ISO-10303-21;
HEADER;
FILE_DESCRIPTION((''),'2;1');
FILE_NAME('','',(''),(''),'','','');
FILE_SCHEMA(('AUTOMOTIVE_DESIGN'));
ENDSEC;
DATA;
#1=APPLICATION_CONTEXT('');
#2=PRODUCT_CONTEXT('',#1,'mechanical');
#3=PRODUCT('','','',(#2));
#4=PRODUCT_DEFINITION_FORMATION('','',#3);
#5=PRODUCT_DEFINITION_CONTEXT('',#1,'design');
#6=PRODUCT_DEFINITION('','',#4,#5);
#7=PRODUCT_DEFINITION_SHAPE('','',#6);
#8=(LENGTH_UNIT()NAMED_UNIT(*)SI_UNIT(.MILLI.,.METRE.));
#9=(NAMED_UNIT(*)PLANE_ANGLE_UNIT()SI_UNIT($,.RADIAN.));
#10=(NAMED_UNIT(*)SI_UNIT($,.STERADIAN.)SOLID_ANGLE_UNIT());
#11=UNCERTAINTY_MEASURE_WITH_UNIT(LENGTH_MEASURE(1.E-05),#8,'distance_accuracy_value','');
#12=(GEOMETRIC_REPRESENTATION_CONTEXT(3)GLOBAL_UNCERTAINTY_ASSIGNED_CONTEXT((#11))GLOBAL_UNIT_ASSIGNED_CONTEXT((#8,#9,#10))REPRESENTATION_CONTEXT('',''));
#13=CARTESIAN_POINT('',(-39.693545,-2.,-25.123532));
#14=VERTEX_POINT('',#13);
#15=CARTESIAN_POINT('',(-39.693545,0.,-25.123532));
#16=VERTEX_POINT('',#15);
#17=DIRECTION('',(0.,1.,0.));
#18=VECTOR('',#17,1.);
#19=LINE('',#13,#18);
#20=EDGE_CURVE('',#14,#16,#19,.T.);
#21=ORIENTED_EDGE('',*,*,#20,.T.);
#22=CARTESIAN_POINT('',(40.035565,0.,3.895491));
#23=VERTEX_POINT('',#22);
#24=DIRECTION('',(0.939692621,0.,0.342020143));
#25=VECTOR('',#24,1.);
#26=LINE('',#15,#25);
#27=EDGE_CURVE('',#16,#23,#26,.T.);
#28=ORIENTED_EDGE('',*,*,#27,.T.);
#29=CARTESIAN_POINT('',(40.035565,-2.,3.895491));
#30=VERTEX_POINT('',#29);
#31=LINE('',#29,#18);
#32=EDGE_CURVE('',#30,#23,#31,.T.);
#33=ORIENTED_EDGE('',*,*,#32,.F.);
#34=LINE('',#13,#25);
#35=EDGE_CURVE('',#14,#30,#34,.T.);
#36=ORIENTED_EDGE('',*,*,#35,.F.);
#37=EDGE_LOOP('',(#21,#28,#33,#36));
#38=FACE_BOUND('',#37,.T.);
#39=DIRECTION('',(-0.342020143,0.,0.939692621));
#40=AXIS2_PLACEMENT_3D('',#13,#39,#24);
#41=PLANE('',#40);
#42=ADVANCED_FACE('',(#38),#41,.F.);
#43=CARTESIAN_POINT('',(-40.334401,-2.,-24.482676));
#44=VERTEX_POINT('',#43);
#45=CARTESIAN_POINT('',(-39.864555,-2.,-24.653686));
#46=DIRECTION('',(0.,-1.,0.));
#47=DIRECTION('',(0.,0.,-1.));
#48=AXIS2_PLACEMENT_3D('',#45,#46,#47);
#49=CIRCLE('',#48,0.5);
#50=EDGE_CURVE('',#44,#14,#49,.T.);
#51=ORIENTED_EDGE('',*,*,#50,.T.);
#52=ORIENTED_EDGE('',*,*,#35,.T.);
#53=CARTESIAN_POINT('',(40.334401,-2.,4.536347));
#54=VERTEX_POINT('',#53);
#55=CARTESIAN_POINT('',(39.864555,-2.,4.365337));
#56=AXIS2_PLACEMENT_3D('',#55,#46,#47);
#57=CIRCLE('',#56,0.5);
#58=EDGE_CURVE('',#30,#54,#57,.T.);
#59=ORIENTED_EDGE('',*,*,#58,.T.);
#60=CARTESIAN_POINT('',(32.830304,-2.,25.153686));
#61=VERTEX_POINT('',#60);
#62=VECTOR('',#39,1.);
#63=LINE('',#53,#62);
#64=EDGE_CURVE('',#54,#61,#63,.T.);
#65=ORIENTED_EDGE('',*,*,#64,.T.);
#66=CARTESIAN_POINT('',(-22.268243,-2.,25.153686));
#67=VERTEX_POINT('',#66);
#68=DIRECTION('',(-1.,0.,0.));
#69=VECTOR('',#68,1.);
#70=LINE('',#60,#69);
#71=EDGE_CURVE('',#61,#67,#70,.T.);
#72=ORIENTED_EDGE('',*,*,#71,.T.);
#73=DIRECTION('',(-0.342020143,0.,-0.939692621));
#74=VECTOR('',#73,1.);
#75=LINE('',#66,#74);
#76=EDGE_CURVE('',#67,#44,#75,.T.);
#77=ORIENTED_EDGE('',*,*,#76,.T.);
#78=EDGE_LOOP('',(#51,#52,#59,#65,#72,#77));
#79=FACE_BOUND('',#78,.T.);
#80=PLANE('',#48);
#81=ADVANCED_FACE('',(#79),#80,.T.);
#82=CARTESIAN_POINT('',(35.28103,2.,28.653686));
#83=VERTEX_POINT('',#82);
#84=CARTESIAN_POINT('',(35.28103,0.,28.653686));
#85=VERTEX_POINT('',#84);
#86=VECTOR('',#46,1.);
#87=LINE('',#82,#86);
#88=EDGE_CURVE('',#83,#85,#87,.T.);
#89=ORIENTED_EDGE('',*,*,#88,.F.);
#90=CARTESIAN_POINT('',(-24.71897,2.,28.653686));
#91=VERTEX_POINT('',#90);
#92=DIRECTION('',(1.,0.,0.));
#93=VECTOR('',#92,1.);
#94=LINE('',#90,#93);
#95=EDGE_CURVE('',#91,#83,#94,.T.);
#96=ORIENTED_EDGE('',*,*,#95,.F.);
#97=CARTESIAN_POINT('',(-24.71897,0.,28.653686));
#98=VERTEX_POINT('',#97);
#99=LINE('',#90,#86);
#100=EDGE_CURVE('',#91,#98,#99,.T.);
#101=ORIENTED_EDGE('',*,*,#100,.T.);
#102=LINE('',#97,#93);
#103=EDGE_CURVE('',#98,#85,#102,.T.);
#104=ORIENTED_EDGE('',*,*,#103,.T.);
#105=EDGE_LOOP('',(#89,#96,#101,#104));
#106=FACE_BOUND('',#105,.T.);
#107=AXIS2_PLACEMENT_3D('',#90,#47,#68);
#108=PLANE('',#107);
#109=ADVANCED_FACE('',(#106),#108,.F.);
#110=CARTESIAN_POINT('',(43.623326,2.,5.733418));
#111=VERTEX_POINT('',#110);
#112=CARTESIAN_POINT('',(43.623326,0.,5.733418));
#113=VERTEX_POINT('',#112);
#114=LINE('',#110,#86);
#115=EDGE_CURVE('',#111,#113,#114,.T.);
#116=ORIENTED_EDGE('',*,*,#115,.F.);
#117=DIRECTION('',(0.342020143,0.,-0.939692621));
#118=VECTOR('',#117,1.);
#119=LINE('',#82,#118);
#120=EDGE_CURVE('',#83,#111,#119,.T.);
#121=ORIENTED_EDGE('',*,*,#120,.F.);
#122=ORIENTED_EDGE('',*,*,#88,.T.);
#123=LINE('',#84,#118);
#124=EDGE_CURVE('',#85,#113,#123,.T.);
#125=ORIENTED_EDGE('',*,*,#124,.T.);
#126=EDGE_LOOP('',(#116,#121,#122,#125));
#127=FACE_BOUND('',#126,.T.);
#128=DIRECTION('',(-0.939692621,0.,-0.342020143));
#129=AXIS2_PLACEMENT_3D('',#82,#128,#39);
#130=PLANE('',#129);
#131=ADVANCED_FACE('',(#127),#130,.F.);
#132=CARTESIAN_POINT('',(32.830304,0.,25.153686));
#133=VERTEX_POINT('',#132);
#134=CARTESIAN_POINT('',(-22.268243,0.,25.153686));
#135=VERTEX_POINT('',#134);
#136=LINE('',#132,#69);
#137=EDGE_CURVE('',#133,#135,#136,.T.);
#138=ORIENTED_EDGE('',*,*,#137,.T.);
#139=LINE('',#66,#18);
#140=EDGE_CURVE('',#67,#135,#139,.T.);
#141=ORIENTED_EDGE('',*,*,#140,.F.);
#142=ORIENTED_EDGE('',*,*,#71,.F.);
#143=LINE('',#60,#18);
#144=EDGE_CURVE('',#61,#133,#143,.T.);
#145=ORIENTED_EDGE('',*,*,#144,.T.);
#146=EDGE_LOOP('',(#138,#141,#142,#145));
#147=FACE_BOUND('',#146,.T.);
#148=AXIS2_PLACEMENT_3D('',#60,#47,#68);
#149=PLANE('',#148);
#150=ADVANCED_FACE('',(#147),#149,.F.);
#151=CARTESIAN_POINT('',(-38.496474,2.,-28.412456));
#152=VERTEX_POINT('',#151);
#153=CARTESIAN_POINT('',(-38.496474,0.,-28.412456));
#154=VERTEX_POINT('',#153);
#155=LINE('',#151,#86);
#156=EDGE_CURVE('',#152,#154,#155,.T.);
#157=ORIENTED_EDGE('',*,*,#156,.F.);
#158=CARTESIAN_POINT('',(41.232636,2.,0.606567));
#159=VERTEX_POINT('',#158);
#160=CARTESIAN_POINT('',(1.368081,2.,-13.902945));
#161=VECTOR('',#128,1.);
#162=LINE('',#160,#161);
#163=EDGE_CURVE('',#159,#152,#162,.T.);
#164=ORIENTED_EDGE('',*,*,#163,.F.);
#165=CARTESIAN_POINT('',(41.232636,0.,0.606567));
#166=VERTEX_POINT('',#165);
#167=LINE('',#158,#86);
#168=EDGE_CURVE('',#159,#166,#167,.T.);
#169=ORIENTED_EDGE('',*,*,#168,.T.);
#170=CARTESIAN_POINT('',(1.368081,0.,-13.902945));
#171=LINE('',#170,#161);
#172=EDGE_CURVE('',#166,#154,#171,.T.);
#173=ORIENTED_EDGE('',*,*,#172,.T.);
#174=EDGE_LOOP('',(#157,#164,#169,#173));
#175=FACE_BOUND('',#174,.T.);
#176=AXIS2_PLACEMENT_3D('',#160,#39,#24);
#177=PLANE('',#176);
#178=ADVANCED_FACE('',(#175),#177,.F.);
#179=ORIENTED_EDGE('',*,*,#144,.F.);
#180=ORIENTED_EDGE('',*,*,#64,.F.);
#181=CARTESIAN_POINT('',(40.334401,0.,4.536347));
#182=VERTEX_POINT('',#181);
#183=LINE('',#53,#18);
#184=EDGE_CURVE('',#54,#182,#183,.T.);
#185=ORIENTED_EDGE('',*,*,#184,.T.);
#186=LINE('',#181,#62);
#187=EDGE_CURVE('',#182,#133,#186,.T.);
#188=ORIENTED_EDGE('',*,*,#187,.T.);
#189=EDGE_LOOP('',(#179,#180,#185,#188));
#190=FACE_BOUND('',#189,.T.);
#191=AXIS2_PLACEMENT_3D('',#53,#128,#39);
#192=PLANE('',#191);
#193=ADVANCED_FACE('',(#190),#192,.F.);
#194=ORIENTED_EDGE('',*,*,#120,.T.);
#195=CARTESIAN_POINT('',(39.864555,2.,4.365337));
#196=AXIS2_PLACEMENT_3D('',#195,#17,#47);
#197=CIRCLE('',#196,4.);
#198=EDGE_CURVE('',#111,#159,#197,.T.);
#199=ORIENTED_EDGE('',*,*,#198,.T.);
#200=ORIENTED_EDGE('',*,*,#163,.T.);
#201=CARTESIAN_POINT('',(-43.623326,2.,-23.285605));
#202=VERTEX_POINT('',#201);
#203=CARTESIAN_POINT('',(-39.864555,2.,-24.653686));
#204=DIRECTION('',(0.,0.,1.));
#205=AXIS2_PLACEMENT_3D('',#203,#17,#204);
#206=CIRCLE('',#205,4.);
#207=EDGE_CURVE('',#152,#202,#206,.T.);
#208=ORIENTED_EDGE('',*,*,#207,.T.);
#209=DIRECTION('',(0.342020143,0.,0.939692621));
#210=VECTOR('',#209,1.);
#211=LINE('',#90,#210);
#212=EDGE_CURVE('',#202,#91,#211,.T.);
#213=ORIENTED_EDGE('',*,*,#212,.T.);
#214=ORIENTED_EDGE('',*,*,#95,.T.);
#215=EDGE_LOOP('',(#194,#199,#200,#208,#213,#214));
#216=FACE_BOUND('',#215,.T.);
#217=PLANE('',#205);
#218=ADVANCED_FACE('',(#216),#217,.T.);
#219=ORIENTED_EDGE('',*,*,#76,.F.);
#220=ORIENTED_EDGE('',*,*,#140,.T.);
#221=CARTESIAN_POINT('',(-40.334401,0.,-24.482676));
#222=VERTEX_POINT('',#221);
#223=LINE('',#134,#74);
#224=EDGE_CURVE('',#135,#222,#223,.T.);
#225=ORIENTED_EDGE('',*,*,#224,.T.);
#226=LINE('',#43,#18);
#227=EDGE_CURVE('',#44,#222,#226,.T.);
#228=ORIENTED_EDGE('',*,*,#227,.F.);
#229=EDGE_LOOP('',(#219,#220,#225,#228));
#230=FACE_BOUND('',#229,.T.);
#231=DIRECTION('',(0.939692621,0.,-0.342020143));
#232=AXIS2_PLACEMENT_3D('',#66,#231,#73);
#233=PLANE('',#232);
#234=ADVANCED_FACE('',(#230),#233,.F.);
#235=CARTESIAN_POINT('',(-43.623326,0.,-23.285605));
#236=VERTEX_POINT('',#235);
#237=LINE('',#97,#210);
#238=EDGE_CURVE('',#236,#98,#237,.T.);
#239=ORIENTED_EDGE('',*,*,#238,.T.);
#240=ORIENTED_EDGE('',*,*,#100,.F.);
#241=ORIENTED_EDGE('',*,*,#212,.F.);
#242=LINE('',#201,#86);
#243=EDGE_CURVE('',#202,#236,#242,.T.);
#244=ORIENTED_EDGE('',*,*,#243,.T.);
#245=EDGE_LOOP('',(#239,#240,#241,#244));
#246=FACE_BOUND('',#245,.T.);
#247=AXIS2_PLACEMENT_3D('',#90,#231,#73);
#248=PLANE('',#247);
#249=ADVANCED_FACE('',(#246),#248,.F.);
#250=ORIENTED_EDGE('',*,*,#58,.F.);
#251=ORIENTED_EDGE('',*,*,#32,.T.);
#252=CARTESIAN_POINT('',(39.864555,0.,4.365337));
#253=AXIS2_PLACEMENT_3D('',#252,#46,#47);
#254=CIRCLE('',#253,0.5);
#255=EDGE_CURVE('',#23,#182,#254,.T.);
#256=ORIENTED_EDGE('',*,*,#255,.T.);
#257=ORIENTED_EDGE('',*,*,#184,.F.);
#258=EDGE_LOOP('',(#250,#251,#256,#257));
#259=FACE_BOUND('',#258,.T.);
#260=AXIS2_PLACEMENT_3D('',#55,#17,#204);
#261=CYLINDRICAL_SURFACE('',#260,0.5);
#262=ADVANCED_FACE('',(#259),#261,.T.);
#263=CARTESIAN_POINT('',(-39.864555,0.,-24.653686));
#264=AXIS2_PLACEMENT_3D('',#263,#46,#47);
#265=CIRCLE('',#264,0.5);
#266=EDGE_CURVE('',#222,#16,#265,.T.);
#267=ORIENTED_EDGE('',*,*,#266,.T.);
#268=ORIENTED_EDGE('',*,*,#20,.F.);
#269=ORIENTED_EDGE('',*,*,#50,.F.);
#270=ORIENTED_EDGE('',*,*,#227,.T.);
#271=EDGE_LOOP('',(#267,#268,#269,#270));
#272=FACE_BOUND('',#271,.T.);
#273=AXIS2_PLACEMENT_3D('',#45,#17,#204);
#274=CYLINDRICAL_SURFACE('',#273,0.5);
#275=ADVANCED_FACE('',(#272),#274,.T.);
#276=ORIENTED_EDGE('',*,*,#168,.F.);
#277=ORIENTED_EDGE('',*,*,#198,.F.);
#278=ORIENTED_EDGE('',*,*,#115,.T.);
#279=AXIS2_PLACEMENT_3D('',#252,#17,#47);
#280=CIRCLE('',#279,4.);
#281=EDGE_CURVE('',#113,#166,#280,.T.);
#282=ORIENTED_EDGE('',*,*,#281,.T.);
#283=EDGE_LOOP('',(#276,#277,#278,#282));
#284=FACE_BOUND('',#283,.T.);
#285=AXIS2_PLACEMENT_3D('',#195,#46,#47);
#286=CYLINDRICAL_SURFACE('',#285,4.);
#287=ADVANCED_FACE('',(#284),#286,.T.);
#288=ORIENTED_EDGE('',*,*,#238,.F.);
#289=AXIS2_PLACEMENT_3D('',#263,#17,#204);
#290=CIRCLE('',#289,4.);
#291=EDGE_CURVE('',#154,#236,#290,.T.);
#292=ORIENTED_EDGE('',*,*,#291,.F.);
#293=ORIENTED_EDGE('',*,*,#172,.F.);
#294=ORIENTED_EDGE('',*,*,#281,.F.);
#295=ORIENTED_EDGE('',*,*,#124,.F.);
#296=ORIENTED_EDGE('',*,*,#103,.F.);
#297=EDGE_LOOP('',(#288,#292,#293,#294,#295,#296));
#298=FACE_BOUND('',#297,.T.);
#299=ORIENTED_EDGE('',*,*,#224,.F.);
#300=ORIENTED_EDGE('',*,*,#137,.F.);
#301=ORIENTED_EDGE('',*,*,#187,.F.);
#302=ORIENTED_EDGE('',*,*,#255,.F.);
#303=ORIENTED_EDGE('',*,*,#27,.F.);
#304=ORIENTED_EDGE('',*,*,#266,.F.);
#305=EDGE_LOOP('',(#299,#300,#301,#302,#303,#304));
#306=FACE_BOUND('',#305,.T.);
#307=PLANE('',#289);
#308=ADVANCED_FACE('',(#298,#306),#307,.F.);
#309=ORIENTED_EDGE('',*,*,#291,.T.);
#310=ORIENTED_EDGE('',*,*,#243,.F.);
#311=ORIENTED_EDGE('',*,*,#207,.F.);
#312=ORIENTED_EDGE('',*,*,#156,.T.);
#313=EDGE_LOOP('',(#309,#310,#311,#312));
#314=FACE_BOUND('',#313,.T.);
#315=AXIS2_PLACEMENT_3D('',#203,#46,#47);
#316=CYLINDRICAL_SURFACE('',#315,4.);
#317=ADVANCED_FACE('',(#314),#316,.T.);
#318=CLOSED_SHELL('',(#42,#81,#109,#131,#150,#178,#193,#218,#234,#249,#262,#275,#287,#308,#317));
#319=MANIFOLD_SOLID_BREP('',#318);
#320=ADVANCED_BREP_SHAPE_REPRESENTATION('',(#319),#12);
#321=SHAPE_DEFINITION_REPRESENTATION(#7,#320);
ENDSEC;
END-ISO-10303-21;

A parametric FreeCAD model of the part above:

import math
import FreeCAD as App
import Part
import Sketcher
from FreeCAD import Vector
Q = App.Units.Quantity

doc = App.newDocument("Part")
body = doc.addObject("PartDesign::Body", "Body")

# Sketch on XZ plane
sketch1 = body.newObject("Sketcher::SketchObject", "Sketch")
sketch1.AttachmentSupport = (doc.getObject("XZ_Plane"), [""])
sketch1.MapMode = "FlatFace"
sketch1.addGeometry(Part.LineSegment(Vector(-24.7, 28.7, 0), Vector(35.3, 28.7, 0)), False)
sketch1.addGeometry(Part.LineSegment(Vector(35.3, 28.7, 0), Vector(43.6, 5.7, 0)), False)
sketch1.addGeometry(Part.ArcOfCircle(Part.Circle(Vector(39.9, 4.4, 0), Vector(0, 0, 1), 4), math.radians(-70), math.radians(20)), False)
sketch1.addGeometry(Part.LineSegment(Vector(41.2, 0.6, 0), Vector(1.4, -13.9, 0)), False)
sketch1.addGeometry(Part.LineSegment(Vector(1.4, -13.9, 0), Vector(-38.5, -28.4, 0)), False)
sketch1.addGeometry(Part.ArcOfCircle(Part.Circle(Vector(-39.9, -24.7, 0), Vector(0, 0, 1), 4), math.radians(160), math.radians(290)), False)
sketch1.addGeometry(Part.LineSegment(Vector(-43.6, -23.3, 0), Vector(-24.7, 28.7, 0)), False)
sketch1.addConstraint(Sketcher.Constraint("Coincident", 0, 2, 1, 1))
sketch1.addConstraint(Sketcher.Constraint("Tangent", 1, 2, 2, 2))
sketch1.addConstraint(Sketcher.Constraint("Tangent", 2, 1, 3, 1))
sketch1.addConstraint(Sketcher.Constraint("Coincident", 3, 2, 4, 1))
sketch1.addConstraint(Sketcher.Constraint("Tangent", 4, 2, 5, 2))
sketch1.addConstraint(Sketcher.Constraint("Tangent", 5, 1, 6, 1))
sketch1.addConstraint(Sketcher.Constraint("Coincident", 6, 2, 0, 1))
sketch1.addConstraint(Sketcher.Constraint("Horizontal", 0))
sketch1.addConstraint(Sketcher.Constraint("Equal", 2, 5))
sketch1.addConstraint(Sketcher.Constraint("Perpendicular", 1, 3))
sketch1.addConstraint(Sketcher.Constraint("Parallel", 3, 4))
sketch1.addConstraint(Sketcher.Constraint("Equal", 3, 4))
sketch1.addConstraint(Sketcher.Constraint("Radius", 2, Q("4 mm")))
sketch1.addConstraint(Sketcher.Constraint("DistanceX", 0, 1, 0, 2, Q("60 mm")))
sketch1.addConstraint(Sketcher.Constraint("Angle", 1, Q("-70 deg")))
sketch1.addConstraint(Sketcher.Constraint("Angle", 6, Q("70 deg")))
sketch1.addConstraint(Sketcher.Constraint("DistanceX", 4, 2, 1, 2, Q("82.1198 mm")))
sketch1.addConstraint(Sketcher.Constraint("DistanceX", -1, 1, 0, 2, Q("35.28103 mm")))
sketch1.addConstraint(Sketcher.Constraint("DistanceY", -1, 1, 2, 3, Q("4.365337 mm")))
pad1 = body.newObject("PartDesign::Pad", "Pad")
pad1.Profile = sketch1
pad1.Length = 2
pad1.Reversed = True

# Sketch on XZ plane
sketch2 = body.newObject("Sketcher::SketchObject", "Sketch001")
sketch2.AttachmentSupport = (doc.getObject("XZ_Plane"), [""])
sketch2.MapMode = "FlatFace"
sketch2.addGeometry(Part.LineSegment(Vector(-22.3, 25.2, 0), Vector(-40.3, -24.5, 0)), False)
sketch2.addGeometry(Part.ArcOfCircle(Part.Circle(Vector(-39.9, -24.7, 0), Vector(0, 0, 1), 0.5), math.radians(160), math.radians(290)), False)
sketch2.addGeometry(Part.LineSegment(Vector(-39.7, -25.1, 0), Vector(40, 3.9, 0)), False)
sketch2.addGeometry(Part.ArcOfCircle(Part.Circle(Vector(39.9, 4.4, 0), Vector(0, 0, 1), 0.5), math.radians(-70), math.radians(20)), False)
sketch2.addGeometry(Part.LineSegment(Vector(40.3, 4.5, 0), Vector(32.8, 25.2, 0)), False)
sketch2.addGeometry(Part.LineSegment(Vector(32.8, 25.2, 0), Vector(-22.3, 25.2, 0)), False)
sketch2.addConstraint(Sketcher.Constraint("Tangent", 0, 2, 1, 1))
sketch2.addConstraint(Sketcher.Constraint("Tangent", 1, 2, 2, 1))
sketch2.addConstraint(Sketcher.Constraint("Tangent", 2, 2, 3, 1))
sketch2.addConstraint(Sketcher.Constraint("Tangent", 3, 2, 4, 1))
sketch2.addConstraint(Sketcher.Constraint("Coincident", 4, 2, 5, 1))
sketch2.addConstraint(Sketcher.Constraint("Coincident", 5, 2, 0, 1))
sketch2.addConstraint(Sketcher.Constraint("Horizontal", 5))
sketch2.addConstraint(Sketcher.Constraint("Equal", 1, 3))
sketch2.addConstraint(Sketcher.Constraint("Perpendicular", 2, 4))
sketch2.addConstraint(Sketcher.Constraint("Radius", 1, Q("0.5 mm")))
sketch2.addConstraint(Sketcher.Constraint("Angle", 0, Q("-110 deg")))
sketch2.addConstraint(Sketcher.Constraint("Angle", 2, Q("20 deg")))
sketch2.addConstraint(Sketcher.Constraint("DistanceX", 0, 2, -1, 1, Q("40.334401 mm")))
sketch2.addConstraint(Sketcher.Constraint("DistanceX", -1, 1, 3, 2, Q("40.334401 mm")))
sketch2.addConstraint(Sketcher.Constraint("DistanceX", 1, 2, 5, 2, Q("17.425302 mm")))
sketch2.addConstraint(Sketcher.Constraint("DistanceY", 1, 2, -1, 1, Q("25.123532 mm")))
pad2 = body.newObject("PartDesign::Pad", "Pad001")
pad2.Profile = sketch2
pad2.Length = 2

doc.recompute()
